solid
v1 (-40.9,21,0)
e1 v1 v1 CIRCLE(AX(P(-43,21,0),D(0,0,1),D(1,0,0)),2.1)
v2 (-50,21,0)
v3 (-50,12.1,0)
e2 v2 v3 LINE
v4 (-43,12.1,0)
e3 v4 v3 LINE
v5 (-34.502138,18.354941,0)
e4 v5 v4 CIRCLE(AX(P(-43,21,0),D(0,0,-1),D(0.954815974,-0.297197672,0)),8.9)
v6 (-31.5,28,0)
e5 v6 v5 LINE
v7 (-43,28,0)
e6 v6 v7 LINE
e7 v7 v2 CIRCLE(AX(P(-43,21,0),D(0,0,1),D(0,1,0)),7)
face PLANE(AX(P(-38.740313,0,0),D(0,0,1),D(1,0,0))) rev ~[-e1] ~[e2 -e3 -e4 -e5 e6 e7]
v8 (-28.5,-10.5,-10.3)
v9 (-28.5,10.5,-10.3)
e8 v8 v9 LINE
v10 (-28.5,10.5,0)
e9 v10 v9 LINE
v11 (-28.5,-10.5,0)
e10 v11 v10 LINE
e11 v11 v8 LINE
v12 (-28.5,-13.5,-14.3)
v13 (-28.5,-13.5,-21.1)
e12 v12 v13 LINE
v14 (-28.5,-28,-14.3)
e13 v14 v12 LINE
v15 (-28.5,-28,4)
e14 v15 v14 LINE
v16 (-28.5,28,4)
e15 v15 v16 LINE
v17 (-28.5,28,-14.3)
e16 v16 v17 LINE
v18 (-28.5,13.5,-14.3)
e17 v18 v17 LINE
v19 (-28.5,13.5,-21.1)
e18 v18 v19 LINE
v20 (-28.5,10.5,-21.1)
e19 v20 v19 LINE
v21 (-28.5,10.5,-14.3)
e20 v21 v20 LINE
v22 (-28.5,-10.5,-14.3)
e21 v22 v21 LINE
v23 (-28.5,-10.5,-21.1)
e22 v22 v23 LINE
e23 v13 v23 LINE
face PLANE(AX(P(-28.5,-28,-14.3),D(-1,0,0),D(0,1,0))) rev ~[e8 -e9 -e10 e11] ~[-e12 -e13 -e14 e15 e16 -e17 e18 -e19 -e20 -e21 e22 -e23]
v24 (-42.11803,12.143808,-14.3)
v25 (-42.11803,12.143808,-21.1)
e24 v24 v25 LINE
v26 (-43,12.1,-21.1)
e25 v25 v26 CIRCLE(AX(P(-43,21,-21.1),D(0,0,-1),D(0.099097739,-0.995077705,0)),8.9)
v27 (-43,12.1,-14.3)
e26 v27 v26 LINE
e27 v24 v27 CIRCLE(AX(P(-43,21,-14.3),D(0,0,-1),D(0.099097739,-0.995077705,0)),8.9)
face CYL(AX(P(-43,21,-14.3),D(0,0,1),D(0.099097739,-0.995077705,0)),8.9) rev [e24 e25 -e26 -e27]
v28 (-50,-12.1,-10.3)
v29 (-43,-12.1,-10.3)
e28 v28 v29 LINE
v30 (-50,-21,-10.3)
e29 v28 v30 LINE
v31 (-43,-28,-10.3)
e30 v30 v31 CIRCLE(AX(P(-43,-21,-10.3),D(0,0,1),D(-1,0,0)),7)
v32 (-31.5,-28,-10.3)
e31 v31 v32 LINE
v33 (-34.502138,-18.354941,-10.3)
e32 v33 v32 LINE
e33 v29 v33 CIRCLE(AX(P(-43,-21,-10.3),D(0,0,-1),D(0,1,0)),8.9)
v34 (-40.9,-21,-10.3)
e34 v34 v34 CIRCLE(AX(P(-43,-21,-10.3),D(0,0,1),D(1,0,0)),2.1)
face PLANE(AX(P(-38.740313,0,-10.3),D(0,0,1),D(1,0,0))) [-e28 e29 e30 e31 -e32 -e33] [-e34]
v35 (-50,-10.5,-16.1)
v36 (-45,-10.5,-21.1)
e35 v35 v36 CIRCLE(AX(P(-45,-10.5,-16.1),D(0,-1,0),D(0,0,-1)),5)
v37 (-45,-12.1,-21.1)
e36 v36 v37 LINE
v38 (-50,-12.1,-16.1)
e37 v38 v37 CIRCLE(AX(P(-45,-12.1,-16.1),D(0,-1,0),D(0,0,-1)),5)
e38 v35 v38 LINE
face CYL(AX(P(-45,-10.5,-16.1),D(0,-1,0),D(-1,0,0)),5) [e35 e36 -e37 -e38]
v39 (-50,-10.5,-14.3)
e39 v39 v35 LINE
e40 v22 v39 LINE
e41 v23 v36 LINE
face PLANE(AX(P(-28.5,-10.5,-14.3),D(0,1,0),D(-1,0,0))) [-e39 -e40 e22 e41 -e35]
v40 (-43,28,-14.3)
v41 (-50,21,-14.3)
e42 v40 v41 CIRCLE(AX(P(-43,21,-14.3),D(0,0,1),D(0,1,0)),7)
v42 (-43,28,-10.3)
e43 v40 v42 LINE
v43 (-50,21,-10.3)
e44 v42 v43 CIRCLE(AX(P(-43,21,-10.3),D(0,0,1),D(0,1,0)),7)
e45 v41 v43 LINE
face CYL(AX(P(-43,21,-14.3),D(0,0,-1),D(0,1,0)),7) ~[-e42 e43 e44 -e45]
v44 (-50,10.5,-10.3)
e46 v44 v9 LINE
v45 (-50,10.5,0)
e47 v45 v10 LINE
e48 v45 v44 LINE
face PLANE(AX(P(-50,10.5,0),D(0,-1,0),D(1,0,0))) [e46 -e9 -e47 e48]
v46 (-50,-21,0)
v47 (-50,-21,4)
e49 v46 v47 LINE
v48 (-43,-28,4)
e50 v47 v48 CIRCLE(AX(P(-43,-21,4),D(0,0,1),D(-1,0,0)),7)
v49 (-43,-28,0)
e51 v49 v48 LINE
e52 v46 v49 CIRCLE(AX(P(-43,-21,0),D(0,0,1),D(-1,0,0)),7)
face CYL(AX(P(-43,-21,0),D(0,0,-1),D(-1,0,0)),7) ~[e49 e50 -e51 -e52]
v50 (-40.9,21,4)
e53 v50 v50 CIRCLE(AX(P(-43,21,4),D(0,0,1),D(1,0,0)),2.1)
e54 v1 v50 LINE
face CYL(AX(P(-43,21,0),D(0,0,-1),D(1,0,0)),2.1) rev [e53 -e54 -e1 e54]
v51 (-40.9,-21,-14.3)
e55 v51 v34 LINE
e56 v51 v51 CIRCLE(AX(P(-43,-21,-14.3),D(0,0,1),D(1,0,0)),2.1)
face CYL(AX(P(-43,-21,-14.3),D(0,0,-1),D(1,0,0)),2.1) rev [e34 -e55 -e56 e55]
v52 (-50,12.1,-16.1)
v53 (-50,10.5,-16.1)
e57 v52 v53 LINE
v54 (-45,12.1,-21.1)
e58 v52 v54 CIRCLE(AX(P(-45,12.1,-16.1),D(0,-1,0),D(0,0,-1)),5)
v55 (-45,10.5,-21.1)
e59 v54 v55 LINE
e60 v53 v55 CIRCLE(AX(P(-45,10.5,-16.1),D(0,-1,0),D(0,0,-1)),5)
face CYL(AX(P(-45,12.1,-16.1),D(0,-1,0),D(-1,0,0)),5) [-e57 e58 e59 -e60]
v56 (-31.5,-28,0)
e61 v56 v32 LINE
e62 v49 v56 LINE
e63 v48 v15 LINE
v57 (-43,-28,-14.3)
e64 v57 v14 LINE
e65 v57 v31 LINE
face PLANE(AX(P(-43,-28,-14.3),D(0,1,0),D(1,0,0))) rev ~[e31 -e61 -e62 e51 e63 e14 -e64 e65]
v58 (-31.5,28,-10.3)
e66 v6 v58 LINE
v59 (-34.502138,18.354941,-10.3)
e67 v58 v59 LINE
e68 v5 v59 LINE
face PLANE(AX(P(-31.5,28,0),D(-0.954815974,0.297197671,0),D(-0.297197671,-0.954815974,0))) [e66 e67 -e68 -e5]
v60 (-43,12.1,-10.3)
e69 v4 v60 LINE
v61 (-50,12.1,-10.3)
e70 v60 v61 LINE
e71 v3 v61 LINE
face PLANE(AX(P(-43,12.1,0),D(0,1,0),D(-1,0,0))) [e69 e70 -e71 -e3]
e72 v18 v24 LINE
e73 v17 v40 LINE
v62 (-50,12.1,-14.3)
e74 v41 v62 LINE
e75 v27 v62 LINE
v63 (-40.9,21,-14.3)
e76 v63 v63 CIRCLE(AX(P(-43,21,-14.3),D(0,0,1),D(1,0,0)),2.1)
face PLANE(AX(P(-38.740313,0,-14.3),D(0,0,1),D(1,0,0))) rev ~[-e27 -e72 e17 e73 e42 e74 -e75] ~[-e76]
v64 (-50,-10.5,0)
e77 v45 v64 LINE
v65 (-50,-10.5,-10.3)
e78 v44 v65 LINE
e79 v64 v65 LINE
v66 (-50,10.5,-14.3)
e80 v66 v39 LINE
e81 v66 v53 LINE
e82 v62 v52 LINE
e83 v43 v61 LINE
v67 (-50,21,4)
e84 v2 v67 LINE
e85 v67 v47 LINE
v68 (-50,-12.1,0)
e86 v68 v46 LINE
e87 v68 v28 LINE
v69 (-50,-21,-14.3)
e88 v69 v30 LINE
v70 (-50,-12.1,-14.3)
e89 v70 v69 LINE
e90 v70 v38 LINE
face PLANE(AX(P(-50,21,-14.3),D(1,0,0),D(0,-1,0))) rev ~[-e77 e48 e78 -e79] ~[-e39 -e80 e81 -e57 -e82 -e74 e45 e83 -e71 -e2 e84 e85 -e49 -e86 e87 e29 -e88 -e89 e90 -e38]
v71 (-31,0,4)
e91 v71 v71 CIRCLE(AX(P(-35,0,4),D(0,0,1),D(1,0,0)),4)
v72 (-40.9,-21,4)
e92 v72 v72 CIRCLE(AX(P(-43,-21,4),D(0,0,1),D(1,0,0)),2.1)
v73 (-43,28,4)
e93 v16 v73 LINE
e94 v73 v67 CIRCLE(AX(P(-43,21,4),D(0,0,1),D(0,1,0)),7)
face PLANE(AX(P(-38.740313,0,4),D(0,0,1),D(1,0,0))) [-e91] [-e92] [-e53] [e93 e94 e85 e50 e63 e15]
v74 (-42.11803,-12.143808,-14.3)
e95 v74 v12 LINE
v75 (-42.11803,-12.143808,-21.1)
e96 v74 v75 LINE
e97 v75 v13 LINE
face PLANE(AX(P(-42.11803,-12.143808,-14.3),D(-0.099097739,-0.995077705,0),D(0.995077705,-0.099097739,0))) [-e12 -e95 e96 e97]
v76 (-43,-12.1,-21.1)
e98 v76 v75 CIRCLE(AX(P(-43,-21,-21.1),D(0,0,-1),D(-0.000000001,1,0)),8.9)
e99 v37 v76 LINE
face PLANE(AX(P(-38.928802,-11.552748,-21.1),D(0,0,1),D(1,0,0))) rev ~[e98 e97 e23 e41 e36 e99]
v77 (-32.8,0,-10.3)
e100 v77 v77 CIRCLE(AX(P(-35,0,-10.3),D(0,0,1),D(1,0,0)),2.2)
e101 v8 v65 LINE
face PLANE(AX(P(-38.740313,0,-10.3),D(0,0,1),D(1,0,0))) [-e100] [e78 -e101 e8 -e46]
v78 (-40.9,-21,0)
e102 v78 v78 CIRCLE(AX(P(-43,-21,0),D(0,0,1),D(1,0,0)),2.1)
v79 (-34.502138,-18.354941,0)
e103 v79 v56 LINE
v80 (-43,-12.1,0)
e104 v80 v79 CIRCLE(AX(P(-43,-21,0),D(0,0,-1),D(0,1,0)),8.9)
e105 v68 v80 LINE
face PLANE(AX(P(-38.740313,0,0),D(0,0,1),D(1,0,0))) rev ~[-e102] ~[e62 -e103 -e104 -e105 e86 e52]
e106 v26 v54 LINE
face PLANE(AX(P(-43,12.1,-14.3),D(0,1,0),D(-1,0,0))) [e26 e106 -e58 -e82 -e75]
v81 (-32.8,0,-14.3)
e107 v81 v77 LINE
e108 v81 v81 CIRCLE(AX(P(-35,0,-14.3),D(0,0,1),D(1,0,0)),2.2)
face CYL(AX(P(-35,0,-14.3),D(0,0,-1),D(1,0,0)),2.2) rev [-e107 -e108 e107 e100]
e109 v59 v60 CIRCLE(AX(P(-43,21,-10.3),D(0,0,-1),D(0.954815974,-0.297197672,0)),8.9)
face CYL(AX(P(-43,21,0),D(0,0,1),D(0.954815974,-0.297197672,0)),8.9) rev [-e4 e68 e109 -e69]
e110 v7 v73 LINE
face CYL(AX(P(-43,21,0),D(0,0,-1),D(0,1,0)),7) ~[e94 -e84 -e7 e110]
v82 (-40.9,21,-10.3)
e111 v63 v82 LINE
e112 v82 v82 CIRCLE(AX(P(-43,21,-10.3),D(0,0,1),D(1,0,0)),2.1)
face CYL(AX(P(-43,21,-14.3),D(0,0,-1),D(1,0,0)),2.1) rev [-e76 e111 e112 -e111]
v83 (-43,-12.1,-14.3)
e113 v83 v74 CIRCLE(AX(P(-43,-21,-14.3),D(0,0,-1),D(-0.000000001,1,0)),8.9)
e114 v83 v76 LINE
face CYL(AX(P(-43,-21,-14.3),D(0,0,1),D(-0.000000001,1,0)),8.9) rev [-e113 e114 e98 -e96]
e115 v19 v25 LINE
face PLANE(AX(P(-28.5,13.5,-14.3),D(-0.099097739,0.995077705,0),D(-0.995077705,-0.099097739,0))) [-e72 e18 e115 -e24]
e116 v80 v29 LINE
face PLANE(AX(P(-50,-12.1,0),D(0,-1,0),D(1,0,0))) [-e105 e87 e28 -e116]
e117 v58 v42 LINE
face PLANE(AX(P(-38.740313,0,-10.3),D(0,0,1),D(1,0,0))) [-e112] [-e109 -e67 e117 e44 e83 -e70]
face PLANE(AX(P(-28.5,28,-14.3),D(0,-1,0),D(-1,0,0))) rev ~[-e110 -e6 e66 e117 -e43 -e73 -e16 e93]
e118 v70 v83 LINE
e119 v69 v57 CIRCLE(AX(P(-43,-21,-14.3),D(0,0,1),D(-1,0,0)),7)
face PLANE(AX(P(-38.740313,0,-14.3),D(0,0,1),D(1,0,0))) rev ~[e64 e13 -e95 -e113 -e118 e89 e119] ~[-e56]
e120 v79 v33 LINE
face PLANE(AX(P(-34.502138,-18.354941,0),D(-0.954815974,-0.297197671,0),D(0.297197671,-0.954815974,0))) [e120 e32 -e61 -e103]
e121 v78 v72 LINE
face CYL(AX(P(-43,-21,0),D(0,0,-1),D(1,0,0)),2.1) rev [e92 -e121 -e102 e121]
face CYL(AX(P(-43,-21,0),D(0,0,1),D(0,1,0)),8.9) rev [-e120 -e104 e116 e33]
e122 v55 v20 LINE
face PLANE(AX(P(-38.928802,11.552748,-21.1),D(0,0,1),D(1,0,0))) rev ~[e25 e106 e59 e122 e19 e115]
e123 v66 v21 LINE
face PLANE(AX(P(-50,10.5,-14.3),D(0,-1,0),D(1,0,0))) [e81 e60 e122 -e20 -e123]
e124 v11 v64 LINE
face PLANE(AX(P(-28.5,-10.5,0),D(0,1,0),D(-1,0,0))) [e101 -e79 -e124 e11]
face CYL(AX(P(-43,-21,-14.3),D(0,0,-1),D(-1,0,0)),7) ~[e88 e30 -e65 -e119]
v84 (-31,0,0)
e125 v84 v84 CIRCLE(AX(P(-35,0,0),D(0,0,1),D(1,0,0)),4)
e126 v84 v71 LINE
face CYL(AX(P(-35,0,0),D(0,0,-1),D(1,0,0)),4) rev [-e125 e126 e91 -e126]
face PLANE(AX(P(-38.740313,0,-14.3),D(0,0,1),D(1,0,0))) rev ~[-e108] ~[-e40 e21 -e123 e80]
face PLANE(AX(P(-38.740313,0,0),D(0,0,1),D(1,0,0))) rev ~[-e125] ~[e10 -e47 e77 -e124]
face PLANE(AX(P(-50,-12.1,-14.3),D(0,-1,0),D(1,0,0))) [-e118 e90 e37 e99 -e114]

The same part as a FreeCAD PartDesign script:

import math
import FreeCAD as App
import Part
import Sketcher
Q = App.Units.Quantity


def edges_at(feature, points):
    """Names of the edges that pass closest to the given points."""
    edges = feature.Shape.Edges
    near = lambda p: min(range(len(edges)), key=lambda i: edges[i].distToShape(Part.Vertex(*p))[0])
    return sorted({f"Edge{near(p) + 1}" for p in points})

doc = App.newDocument("Part")
body = doc.addObject("PartDesign::Body", "Body")

sketch1 = doc.addObject("Sketcher::SketchObject", "Sketch")
body.addObject(sketch1)
sketch1.AttachmentSupport = (doc.XY_Plane, [""])
sketch1.MapMode = "FlatFace"
sketch1.addGeometry([
    Part.ArcOfCircle(Part.Circle(App.Vector(-43, 21, 0), App.Vector(0, 0, 1), 7), math.radians(90), math.radians(180)),
    Part.LineSegment(App.Vector(-50, 21, 0), App.Vector(-50, -21, 0)),
    Part.ArcOfCircle(Part.Circle(App.Vector(-43, -21, 0), App.Vector(0, 0, 1), 7), math.radians(-180), math.radians(-90)),
    Part.LineSegment(App.Vector(-43, -28, 0), App.Vector(-28.5, -28, 0)),
    Part.LineSegment(App.Vector(-28.5, -28, 0), App.Vector(-28.5, 28, 0)),
    Part.LineSegment(App.Vector(-28.5, 28, 0), App.Vector(-43, 28, 0)),
    Part.Circle(App.Vector(-43, -21, 0), App.Vector(0, 0, 1), 2.1),
    Part.Circle(App.Vector(-43, 21, 0), App.Vector(0, 0, 1), 2.1),
    Part.Circle(App.Vector(-35, 0, 0), App.Vector(0, 0, 1), 4),
], False)
sketch1.addConstraint([
    Sketcher.Constraint("Tangent", 0, 2, 1, 1),
    Sketcher.Constraint("Tangent", 1, 2, 2, 1),
    Sketcher.Constraint("Tangent", 2, 2, 3, 1),
    Sketcher.Constraint("Coincident", 3, 2, 4, 1),
    Sketcher.Constraint("Coincident", 4, 2, 5, 1),
    Sketcher.Constraint("Tangent", 5, 2, 0, 1),
    Sketcher.Constraint("Vertical", 1),
    Sketcher.Constraint("Horizontal", 3),
    Sketcher.Constraint("Vertical", 4),
    Sketcher.Constraint("Horizontal", 5),
    Sketcher.Constraint("Coincident", 6, 3, 2, 3),
    Sketcher.Constraint("Coincident", 7, 3, 0, 3),
    Sketcher.Constraint("Equal", 0, 2),
    Sketcher.Constraint("Equal", 6, 7),
    Sketcher.Constraint("PointOnObject", 8, 3, -1),
    Sketcher.Constraint("Diameter", 8, Q("8 mm")),
    Sketcher.Constraint("Radius", 0, Q("7 mm")),
    Sketcher.Constraint("Diameter", 6, Q("4.2 mm")),
    Sketcher.Constraint("DistanceY", 1, 2, 1, 1, Q("42 mm")),
    Sketcher.Constraint("DistanceX", 3, 1, 3, 2, Q("14.5 mm")),
    Sketcher.Constraint("DistanceX", 0, 3, -1, 1, Q("43 mm")),
    Sketcher.Constraint("DistanceY", -1, 1, 0, 3, Q("21 mm")),
    Sketcher.Constraint("DistanceX", 8, 3, -1, 1, Q("35 mm")),
])
pad1 = doc.addObject("PartDesign::Pad", "Pad")
body.addObject(pad1)
pad1.Profile = sketch1
pad1.Length = 4

sketch2 = doc.addObject("Sketcher::SketchObject", "Sketch001")
body.addObject(sketch2)
sketch2.AttachmentSupport = (doc.XY_Plane, [""])
sketch2.MapMode = "FlatFace"
sketch2.addGeometry([
    Part.LineSegment(App.Vector(-43, 12.1, 0), App.Vector(-50, 12.1, 0)),
    Part.LineSegment(App.Vector(-50, 12.1, 0), App.Vector(-50, 10.5, 0)),
    Part.LineSegment(App.Vector(-50, 10.5, 0), App.Vector(-28.5, 10.5, 0)),
    Part.LineSegment(App.Vector(-28.5, 10.5, 0), App.Vector(-28.5, 28, 0)),
    Part.LineSegment(App.Vector(-28.5, 28, 0), App.Vector(-31.5, 28, 0)),
    Part.LineSegment(App.Vector(-31.5, 28, 0), App.Vector(-34.502138, 18.354941, 0)),
    Part.ArcOfCircle(Part.Circle(App.Vector(-43, 21, 0), App.Vector(0, 0, 1), 8.9), math.radians(-90), math.radians(-17.289366)),
    Part.LineSegment(App.Vector(-28.5, -10.5, 0), App.Vector(-50, -10.5, 0)),
    Part.LineSegment(App.Vector(-50, -10.5, 0), App.Vector(-50, -12.1, 0)),
    Part.LineSegment(App.Vector(-50, -12.1, 0), App.Vector(-43, -12.1, 0)),
    Part.ArcOfCircle(Part.Circle(App.Vector(-43, -21, 0), App.Vector(0, 0, 1), 8.9), math.radians(17.289366), math.radians(90)),
    Part.LineSegment(App.Vector(-34.502138, -18.354941, 0), App.Vector(-31.5, -28, 0)),
    Part.LineSegment(App.Vector(-31.5, -28, 0), App.Vector(-28.5, -28, 0)),
    Part.LineSegment(App.Vector(-28.5, -28, 0), App.Vector(-28.5, -10.5, 0)),
], False)
sketch2.addConstraint([
    Sketcher.Constraint("Coincident", 0, 2, 1, 1),
    Sketcher.Constraint("Coincident", 1, 2, 2, 1),
    Sketcher.Constraint("Coincident", 2, 2, 3, 1),
    Sketcher.Constraint("Coincident", 3, 2, 4, 1),
    Sketcher.Constraint("Coincident", 4, 2, 5, 1),
    Sketcher.Constraint("Tangent", 5, 2, 6, 2),
    Sketcher.Constraint("Tangent", 6, 1, 0, 1),
    Sketcher.Constraint("Coincident", 7, 2, 8, 1),
    Sketcher.Constraint("Coincident", 8, 2, 9, 1),
    Sketcher.Constraint("Tangent", 9, 2, 10, 2),
    Sketcher.Constraint("Tangent", 10, 1, 11, 1),
    Sketcher.Constraint("Coincident", 11, 2, 12, 1),
    Sketcher.Constraint("Coincident", 12, 2, 13, 1),
    Sketcher.Constraint("Coincident", 13, 2, 7, 1),
    Sketcher.Constraint("Horizontal", 0),
    Sketcher.Constraint("Vertical", 1),
    Sketcher.Constraint("Horizontal", 2),
    Sketcher.Constraint("Vertical", 3),
    Sketcher.Constraint("Horizontal", 4),
    Sketcher.Constraint("Horizontal", 7),
    Sketcher.Constraint("Vertical", 8),
    Sketcher.Constraint("Horizontal", 9),
    Sketcher.Constraint("Horizontal", 12),
    Sketcher.Constraint("Vertical", 13),
    Sketcher.Constraint("Equal", 6, 10),
    Sketcher.Constraint("Symmetric", 6, 3, 10, 3, -1),
    Sketcher.Constraint("Symmetric", 1, 2, 7, 2, -1),
    Sketcher.Constraint("Symmetric", 4, 2, 11, 2, -1),
    Sketcher.Constraint("Vertical", 3, 2, 12, 2),
    Sketcher.Constraint("Radius", 6, Q("8.9 mm")),
    Sketcher.Constraint("DistanceX", 0, 2, 0, 1, Q("7 mm")),
    Sketcher.Constraint("DistanceX", 4, 2, 4, 1, Q("3 mm")),
    Sketcher.Constraint("DistanceX", 2, 1, 2, 2, Q("21.5 mm")),
    Sketcher.Constraint("DistanceY", 1, 2, 1, 1, Q("1.6 mm")),
    Sketcher.Constraint("DistanceY", 3, 1, 3, 2, Q("17.5 mm")),
    Sketcher.Constraint("DistanceX", 6, 3, -1, 1, Q("43 mm")),
    Sketcher.Constraint("DistanceY", -1, 1, 6, 3, Q("21 mm")),
])
pad2 = doc.addObject("PartDesign::Pad", "Pad001")
body.addObject(pad2)
pad2.Profile = sketch2
pad2.Length = 10.3
pad2.Reversed = True

sketch3 = doc.addObject("Sketcher::SketchObject", "Sketch002")
body.addObject(sketch3)
sketch3.AttachmentSupport = (doc.XY_Plane, [""])
sketch3.MapMode = "FlatFace"
sketch3.AttachmentOffset = App.Placement(App.Vector(0, 0, -14.3), App.Rotation())
sketch3.addGeometry([
    Part.ArcOfCircle(Part.Circle(App.Vector(-43, 21, 0), App.Vector(0, 0, 1), 7), math.radians(90), math.radians(180)),
    Part.LineSegment(App.Vector(-50, 21, 0), App.Vector(-50, -21, 0)),
    Part.ArcOfCircle(Part.Circle(App.Vector(-43, -21, 0), App.Vector(0, 0, 1), 7), math.radians(-180), math.radians(-90)),
    Part.LineSegment(App.Vector(-43, -28, 0), App.Vector(-28.5, -28, 0)),
    Part.LineSegment(App.Vector(-28.5, -28, 0), App.Vector(-28.5, 28, 0)),
    Part.LineSegment(App.Vector(-28.5, 28, 0), App.Vector(-43, 28, 0)),
    Part.Circle(App.Vector(-43, -21, 0), App.Vector(0, 0, 1), 2.1),
    Part.Circle(App.Vector(-43, 21, 0), App.Vector(0, 0, 1), 2.1),
    Part.Circle(App.Vector(-35, 0, 0), App.Vector(0, 0, 1), 2.2),
], False)
sketch3.addConstraint([
    Sketcher.Constraint("Tangent", 0, 2, 1, 1),
    Sketcher.Constraint("Tangent", 1, 2, 2, 1),
    Sketcher.Constraint("Tangent", 2, 2, 3, 1),
    Sketcher.Constraint("Coincident", 3, 2, 4, 1),
    Sketcher.Constraint("Coincident", 4, 2, 5, 1),
    Sketcher.Constraint("Tangent", 5, 2, 0, 1),
    Sketcher.Constraint("Vertical", 1),
    Sketcher.Constraint("Horizontal", 3),
    Sketcher.Constraint("Vertical", 4),
    Sketcher.Constraint("Horizontal", 5),
    Sketcher.Constraint("Coincident", 6, 3, 2, 3),
    Sketcher.Constraint("Coincident", 7, 3, 0, 3),
    Sketcher.Constraint("Equal", 0, 2),
    Sketcher.Constraint("Equal", 6, 7),
    Sketcher.Constraint("PointOnObject", 8, 3, -1),
    Sketcher.Constraint("Radius", 0, Q("7 mm")),
    Sketcher.Constraint("Diameter", 6, Q("4.2 mm")),
    Sketcher.Constraint("Diameter", 8, Q("4.4 mm")),
    Sketcher.Constraint("DistanceY", 1, 2, 1, 1, Q("42 mm")),
    Sketcher.Constraint("DistanceX", 3, 1, 3, 2, Q("14.5 mm")),
    Sketcher.Constraint("DistanceX", 0, 3, -1, 1, Q("43 mm")),
    Sketcher.Constraint("DistanceY", -1, 1, 0, 3, Q("21 mm")),
    Sketcher.Constraint("DistanceX", 8, 3, -1, 1, Q("35 mm")),
])
pad3 = doc.addObject("PartDesign::Pad", "Pad002")
body.addObject(pad3)
pad3.Profile = sketch3
pad3.Length = 4

sketch4 = doc.addObject("Sketcher::SketchObject", "Sketch003")
body.addObject(sketch4)
sketch4.AttachmentSupport = (doc.XY_Plane, [""])
sketch4.MapMode = "FlatFace"
sketch4.AttachmentOffset = App.Placement(App.Vector(0, 0, -14.3), App.Rotation())
sketch4.addGeometry([
    Part.LineSegment(App.Vector(-43, 12.1, 0), App.Vector(-50, 12.1, 0)),
    Part.LineSegment(App.Vector(-50, 12.1, 0), App.Vector(-50, 10.5, 0)),
    Part.LineSegment(App.Vector(-50, 10.5, 0), App.Vector(-28.5, 10.5, 0)),
    Part.LineSegment(App.Vector(-28.5, 10.5, 0), App.Vector(-28.5, 13.5, 0)),
    Part.LineSegment(App.Vector(-28.5, 13.5, 0), App.Vector(-42.11803, 12.143808, 0)),
    Part.ArcOfCircle(Part.Circle(App.Vector(-43, 21, 0), App.Vector(0, 0, 1), 8.9), math.radians(-90), math.radians(-84.312783)),
    Part.LineSegment(App.Vector(-28.5, -10.5, 0), App.Vector(-50, -10.5, 0)),
    Part.LineSegment(App.Vector(-50, -10.5, 0), App.Vector(-50, -12.1, 0)),
    Part.LineSegment(App.Vector(-50, -12.1, 0), App.Vector(-43, -12.1, 0)),
    Part.ArcOfCircle(Part.Circle(App.Vector(-43, -21, 0), App.Vector(0, 0, 1), 8.9), math.radians(84.312783), math.radians(90)),
    Part.LineSegment(App.Vector(-42.11803, -12.143808, 0), App.Vector(-28.5, -13.5, 0)),
    Part.LineSegment(App.Vector(-28.5, -13.5, 0), App.Vector(-28.5, -10.5, 0)),
], False)
sketch4.addConstraint([
    Sketcher.Constraint("Coincident", 0, 2, 1, 1),
    Sketcher.Constraint("Coincident", 1, 2, 2, 1),
    Sketcher.Constraint("Coincident", 2, 2, 3, 1),
    Sketcher.Constraint("Coincident", 3, 2, 4, 1),
    Sketcher.Constraint("Tangent", 4, 2, 5, 2),
    Sketcher.Constraint("Tangent", 5, 1, 0, 1),
    Sketcher.Constraint("Coincident", 6, 2, 7, 1),
    Sketcher.Constraint("Coincident", 7, 2, 8, 1),
    Sketcher.Constraint("Tangent", 8, 2, 9, 2),
    Sketcher.Constraint("Tangent", 9, 1, 10, 1),
    Sketcher.Constraint("Coincident", 10, 2, 11, 1),
    Sketcher.Constraint("Coincident", 11, 2, 6, 1),
    Sketcher.Constraint("Horizontal", 0),
    Sketcher.Constraint("Vertical", 1),
    Sketcher.Constraint("Horizontal", 2),
    Sketcher.Constraint("Vertical", 3),
    Sketcher.Constraint("Horizontal", 6),
    Sketcher.Constraint("Vertical", 7),
    Sketcher.Constraint("Horizontal", 8),
    Sketcher.Constraint("Vertical", 11),
    Sketcher.Constraint("Equal", 5, 9),
    Sketcher.Constraint("Symmetric", 5, 3, 9, 3, -1),
    Sketcher.Constraint("Symmetric", 1, 2, 6, 2, -1),
    Sketcher.Constraint("Symmetric", 3, 2, 10, 2, -1),
    Sketcher.Constraint("Radius", 5, Q("8.9 mm")),
    Sketcher.Constraint("DistanceX", 0, 2, 0, 1, Q("7 mm")),
    Sketcher.Constraint("DistanceY", 3, 1, 3, 2, Q("3 mm")),
    Sketcher.Constraint("DistanceX", 2, 1, 2, 2, Q("21.5 mm")),
    Sketcher.Constraint("DistanceY", 1, 2, 1, 1, Q("1.6 mm")),
    Sketcher.Constraint("DistanceX", 5, 3, -1, 1, Q("43 mm")),
    Sketcher.Constraint("DistanceY", -1, 1, 5, 3, Q("21 mm")),
])
pad4 = doc.addObject("PartDesign::Pad", "Pad003")
body.addObject(pad4)
pad4.Profile = sketch4
pad4.Length = 6.8
pad4.Reversed = True
doc.recompute()

fillet = doc.addObject("PartDesign::Fillet", "Fillet")
body.addObject(fillet)
fillet.Base = (pad4, edges_at(pad4, [(-50, 11.3, -21.1), (-50, -11.3, -21.1)]))
fillet.Radius = 5

doc.recompute()
